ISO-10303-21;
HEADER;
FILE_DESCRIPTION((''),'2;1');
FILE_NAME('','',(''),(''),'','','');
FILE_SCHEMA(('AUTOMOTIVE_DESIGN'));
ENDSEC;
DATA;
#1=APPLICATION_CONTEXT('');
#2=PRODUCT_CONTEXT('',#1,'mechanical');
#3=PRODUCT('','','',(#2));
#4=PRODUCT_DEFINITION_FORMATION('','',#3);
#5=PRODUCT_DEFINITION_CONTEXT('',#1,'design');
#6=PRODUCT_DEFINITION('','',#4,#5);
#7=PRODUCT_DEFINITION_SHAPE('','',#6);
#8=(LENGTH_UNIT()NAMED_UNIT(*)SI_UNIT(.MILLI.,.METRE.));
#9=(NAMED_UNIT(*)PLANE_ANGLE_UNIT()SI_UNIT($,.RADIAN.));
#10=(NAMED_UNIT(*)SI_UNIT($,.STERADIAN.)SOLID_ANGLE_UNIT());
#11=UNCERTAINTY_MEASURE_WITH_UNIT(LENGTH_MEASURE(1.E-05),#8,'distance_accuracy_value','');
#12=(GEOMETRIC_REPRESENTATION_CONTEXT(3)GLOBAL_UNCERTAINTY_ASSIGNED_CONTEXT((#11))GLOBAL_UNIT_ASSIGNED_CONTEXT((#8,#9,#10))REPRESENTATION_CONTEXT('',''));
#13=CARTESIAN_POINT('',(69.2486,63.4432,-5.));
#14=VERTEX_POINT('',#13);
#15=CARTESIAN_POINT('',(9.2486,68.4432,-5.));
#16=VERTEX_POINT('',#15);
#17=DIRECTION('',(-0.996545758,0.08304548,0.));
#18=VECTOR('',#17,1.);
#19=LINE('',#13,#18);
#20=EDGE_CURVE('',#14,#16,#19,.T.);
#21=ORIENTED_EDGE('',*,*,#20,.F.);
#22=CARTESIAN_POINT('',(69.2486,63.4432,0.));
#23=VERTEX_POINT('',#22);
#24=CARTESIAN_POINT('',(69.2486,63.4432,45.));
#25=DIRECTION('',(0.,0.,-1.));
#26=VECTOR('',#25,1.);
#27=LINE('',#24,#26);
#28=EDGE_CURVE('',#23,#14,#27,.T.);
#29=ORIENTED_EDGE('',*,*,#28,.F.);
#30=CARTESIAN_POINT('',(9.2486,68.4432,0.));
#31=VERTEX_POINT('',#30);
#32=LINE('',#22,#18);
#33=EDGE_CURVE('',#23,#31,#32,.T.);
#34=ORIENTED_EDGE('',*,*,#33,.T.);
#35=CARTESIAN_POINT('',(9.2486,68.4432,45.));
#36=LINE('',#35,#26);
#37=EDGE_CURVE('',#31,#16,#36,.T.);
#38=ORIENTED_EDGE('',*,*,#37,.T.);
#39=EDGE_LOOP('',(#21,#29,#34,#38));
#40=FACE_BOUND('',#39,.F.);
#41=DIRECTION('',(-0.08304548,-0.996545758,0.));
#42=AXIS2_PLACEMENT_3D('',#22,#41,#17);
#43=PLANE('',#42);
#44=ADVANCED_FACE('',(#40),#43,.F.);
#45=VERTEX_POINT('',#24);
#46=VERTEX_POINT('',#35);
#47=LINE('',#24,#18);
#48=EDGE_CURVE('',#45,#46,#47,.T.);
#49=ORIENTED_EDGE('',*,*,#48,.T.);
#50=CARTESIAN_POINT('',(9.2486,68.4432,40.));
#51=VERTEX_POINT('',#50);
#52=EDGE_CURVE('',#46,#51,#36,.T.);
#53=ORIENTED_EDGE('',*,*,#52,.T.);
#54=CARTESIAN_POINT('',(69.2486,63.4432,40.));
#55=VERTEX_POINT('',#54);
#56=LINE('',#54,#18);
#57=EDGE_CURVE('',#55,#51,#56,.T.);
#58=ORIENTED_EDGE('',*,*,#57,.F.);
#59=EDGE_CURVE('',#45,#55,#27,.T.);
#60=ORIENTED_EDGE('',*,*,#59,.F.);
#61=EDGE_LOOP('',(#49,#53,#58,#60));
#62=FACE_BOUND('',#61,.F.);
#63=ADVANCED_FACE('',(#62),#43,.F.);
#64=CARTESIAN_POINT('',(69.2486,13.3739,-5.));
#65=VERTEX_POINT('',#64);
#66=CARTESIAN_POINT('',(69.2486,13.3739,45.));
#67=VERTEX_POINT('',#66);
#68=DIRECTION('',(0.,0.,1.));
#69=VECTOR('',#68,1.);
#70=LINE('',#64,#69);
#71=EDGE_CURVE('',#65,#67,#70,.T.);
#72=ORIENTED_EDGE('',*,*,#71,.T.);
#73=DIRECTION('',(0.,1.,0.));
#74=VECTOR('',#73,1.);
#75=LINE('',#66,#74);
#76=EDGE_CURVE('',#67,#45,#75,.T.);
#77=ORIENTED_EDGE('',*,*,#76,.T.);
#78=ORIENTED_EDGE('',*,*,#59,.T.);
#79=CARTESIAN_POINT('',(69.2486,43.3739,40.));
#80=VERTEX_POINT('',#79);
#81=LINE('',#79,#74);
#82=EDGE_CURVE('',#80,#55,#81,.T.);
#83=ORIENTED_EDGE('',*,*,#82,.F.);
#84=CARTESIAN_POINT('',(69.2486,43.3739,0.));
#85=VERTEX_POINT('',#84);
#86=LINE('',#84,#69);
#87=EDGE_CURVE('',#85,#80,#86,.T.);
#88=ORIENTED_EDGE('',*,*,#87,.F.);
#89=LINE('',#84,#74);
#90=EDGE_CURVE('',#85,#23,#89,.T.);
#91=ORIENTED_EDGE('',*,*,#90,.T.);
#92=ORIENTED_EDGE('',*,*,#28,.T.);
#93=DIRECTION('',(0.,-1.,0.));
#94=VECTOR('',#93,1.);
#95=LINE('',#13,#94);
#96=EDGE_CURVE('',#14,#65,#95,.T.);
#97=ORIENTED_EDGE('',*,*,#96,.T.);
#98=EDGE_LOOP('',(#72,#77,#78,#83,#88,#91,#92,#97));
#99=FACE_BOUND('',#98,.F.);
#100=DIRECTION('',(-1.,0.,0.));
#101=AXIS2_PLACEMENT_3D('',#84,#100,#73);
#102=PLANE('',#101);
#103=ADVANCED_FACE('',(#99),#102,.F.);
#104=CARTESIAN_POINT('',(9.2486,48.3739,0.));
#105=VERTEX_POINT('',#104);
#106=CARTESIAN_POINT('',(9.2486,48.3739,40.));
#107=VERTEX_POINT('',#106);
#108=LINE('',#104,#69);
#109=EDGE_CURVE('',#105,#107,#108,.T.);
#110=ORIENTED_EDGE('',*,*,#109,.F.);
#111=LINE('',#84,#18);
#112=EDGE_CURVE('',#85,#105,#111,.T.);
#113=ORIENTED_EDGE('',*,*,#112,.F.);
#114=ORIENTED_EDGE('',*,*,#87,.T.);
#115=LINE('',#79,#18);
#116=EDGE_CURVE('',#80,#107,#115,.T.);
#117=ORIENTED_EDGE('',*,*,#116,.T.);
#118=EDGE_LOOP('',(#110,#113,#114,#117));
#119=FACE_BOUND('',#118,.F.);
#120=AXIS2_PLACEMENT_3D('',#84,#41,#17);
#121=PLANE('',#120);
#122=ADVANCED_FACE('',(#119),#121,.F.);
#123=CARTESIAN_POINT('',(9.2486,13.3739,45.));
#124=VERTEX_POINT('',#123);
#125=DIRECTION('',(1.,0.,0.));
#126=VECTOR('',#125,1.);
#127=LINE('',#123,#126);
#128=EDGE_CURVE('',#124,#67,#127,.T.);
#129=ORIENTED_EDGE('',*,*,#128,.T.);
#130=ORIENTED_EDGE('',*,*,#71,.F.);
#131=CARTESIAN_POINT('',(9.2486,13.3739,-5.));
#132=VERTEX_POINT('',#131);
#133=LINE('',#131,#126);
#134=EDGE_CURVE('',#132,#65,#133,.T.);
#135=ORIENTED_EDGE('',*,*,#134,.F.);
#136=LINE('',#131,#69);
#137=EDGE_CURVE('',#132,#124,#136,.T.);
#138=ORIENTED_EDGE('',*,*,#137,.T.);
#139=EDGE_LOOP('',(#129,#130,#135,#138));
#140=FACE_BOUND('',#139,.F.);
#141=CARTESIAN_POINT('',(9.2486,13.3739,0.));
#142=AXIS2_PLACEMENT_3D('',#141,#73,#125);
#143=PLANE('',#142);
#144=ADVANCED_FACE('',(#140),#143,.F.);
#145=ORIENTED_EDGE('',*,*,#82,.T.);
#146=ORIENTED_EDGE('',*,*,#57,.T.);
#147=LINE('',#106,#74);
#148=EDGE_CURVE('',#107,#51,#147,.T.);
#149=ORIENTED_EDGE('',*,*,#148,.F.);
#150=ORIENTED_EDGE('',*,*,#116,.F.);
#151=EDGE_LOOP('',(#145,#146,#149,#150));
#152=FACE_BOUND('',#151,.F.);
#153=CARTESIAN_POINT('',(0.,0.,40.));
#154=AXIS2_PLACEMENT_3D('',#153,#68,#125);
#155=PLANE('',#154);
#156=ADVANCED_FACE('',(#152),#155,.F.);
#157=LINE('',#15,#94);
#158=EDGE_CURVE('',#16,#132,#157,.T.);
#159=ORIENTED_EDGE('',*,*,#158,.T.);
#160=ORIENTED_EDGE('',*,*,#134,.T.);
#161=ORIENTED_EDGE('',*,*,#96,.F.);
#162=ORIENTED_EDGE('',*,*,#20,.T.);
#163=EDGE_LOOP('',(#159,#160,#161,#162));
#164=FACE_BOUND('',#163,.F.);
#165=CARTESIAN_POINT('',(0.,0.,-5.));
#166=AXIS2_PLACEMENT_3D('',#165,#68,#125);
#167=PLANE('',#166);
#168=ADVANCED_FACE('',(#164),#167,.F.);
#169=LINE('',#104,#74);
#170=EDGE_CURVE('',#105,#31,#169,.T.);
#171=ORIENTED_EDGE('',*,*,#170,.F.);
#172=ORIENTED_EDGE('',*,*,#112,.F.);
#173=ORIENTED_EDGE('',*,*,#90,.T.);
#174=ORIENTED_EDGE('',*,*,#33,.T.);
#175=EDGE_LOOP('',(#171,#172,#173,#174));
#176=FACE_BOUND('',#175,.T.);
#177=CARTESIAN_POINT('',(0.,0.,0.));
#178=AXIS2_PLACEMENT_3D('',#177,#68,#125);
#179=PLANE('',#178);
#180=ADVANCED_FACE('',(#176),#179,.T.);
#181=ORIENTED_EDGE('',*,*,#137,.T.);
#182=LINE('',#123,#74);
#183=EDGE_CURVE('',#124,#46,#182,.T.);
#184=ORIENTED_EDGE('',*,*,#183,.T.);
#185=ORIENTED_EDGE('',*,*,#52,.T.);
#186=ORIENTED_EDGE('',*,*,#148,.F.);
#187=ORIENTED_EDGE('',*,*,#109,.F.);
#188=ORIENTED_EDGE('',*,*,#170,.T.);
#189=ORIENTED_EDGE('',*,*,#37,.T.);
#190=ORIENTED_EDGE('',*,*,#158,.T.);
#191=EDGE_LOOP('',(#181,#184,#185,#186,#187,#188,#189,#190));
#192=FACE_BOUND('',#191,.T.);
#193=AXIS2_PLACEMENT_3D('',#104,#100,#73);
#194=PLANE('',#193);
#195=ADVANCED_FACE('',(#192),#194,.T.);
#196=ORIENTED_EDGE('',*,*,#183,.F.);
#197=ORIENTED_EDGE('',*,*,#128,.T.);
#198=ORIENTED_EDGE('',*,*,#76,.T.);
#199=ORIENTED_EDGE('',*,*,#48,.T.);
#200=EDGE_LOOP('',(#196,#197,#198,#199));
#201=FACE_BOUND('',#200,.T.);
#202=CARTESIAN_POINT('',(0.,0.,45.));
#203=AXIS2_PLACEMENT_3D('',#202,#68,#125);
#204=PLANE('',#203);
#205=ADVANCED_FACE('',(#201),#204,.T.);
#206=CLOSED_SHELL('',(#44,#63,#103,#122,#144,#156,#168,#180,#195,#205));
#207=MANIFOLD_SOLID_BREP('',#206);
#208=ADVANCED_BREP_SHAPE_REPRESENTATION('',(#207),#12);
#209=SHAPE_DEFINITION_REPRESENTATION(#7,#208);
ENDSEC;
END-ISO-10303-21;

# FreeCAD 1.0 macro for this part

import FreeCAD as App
import Part
import Sketcher
Q = App.Units.Quantity

doc = App.newDocument("Part")
params = doc.addObject("Spreadsheet::Sheet", "Params")
for row, (alias, value) in enumerate([
    ("sketch1_width", "60 mm"),
    ("sketch1_height", "35 mm"),
    ("sketch1_height2", "30 mm"),
    ("pad1_length", "45 mm"),
    ("pad1_length2", "5 mm"),
    ("pad2_length", "5 mm"),
    ("pad3_length", "45 mm"),
    ("pocket1_length", "40 mm"),
], start=1):
    params.set(f"A{row}", alias)
    params.set(f"B{row}", "=" + value)
    params.setAlias(f"B{row}", alias)

body = doc.addObject("PartDesign::Body", "Body")

# Sketch on XY plane
sketch1 = doc.addObject("Sketcher::SketchObject", "Sketch")
body.addObject(sketch1)
sketch1.AttachmentSupport = (doc.XY_Plane, [""])
sketch1.MapMode = "FlatFace"
sketch1.addGeometry([
    Part.LineSegment(App.Vector(9, 48, 0), App.Vector(9, 13, 0)),
    Part.LineSegment(App.Vector(9, 13, 0), App.Vector(69, 13, 0)),
    Part.LineSegment(App.Vector(69, 13, 0), App.Vector(69, 43, 0)),
    Part.LineSegment(App.Vector(69, 43, 0), App.Vector(9, 48, 0)),
], False)
sketch1.addConstraint([
    Sketcher.Constraint("Coincident", 0, 2, 1, 1),
    Sketcher.Constraint("Coincident", 1, 2, 2, 1),
    Sketcher.Constraint("Coincident", 2, 2, 3, 1),
    Sketcher.Constraint("Coincident", 3, 2, 0, 1),
    Sketcher.Constraint("Vertical", 0),
    Sketcher.Constraint("Horizontal", 1),
    Sketcher.Constraint("Vertical", 2),
    Sketcher.Constraint("DistanceX", 1, 1, 1, 2, Q("60 mm")),
    Sketcher.Constraint("DistanceY", 0, 2, 0, 1, Q("35 mm")),
    Sketcher.Constraint("DistanceY", 2, 1, 2, 2, Q("30 mm")),
    Sketcher.Constraint("DistanceY", -1, 1, 0, 2, Q("13.374 mm")),
    Sketcher.Constraint("DistanceX", -1, 1, 0, 2, Q("9.2486 mm")),
])
sketch1.setExpression("Constraints[7]", "Params.sketch1_width")
sketch1.setExpression("Constraints[8]", "Params.sketch1_height")
sketch1.setExpression("Constraints[9]", "Params.sketch1_height2")
pad1 = doc.addObject("PartDesign::Pad", "Pad")
body.addObject(pad1)
pad1.Profile = sketch1
pad1.Type = "TwoLengths"
pad1.setExpression("Length", "Params.pad1_length")
pad1.setExpression("Length2", "Params.pad1_length2")

# Sketch on XY plane
sketch2 = doc.addObject("Sketcher::SketchObject", "Sketch001")
body.addObject(sketch2)
sketch2.AttachmentSupport = (doc.XY_Plane, [""])
sketch2.MapMode = "FlatFace"
sketch2.addGeometry([
    Part.LineSegment(App.Vector(9, 68, 0), App.Vector(9, 48, 0)),
    Part.LineSegment(App.Vector(9, 48, 0), App.Vector(69, 43, 0)),
    Part.LineSegment(App.Vector(69, 43, 0), App.Vector(69, 63, 0)),
    Part.LineSegment(App.Vector(69, 63, 0), App.Vector(9, 68, 0)),
], False)
sketch2.addConstraint([
    Sketcher.Constraint("Coincident", 0, 2, 1, 1),
    Sketcher.Constraint("Coincident", 1, 2, 2, 1),
    Sketcher.Constraint("Coincident", 2, 2, 3, 1),
    Sketcher.Constraint("Coincident", 3, 2, 0, 1),
    Sketcher.Constraint("Vertical", 0),
    Sketcher.Constraint("Vertical", 2),
    Sketcher.Constraint("Parallel", 1, 3),
    Sketcher.Constraint("DistanceX", 0, 2, 1, 2, Q("60 mm")),
    Sketcher.Constraint("DistanceY", 1, 2, 0, 2, Q("5 mm")),
    Sketcher.Constraint("DistanceY", 0, 2, 0, 1, Q("20.0693 mm")),
    Sketcher.Constraint("DistanceY", -1, 1, 0, 2, Q("48.374 mm")),
    Sketcher.Constraint("DistanceX", -1, 1, 0, 2, Q("9.2486 mm")),
])
pad2 = doc.addObject("PartDesign::Pad", "Pad001")
body.addObject(pad2)
pad2.Profile = sketch2
pad2.setExpression("Length", "Params.pad2_length")
pad2.Reversed = True

# Sketch on XY plane
sketch3 = doc.addObject("Sketcher::SketchObject", "Sketch002")
body.addObject(sketch3)
sketch3.AttachmentSupport = (doc.XY_Plane, [""])
sketch3.MapMode = "FlatFace"
sketch3.addGeometry([
    Part.LineSegment(App.Vector(9, 68, 0), App.Vector(9, 48, 0)),
    Part.LineSegment(App.Vector(9, 48, 0), App.Vector(69, 43, 0)),
    Part.LineSegment(App.Vector(69, 43, 0), App.Vector(69, 63, 0)),
    Part.LineSegment(App.Vector(69, 63, 0), App.Vector(9, 68, 0)),
], False)
sketch3.addConstraint([
    Sketcher.Constraint("Coincident", 0, 2, 1, 1),
    Sketcher.Constraint("Coincident", 1, 2, 2, 1),
    Sketcher.Constraint("Coincident", 2, 2, 3, 1),
    Sketcher.Constraint("Coincident", 3, 2, 0, 1),
    Sketcher.Constraint("Vertical", 0),
    Sketcher.Constraint("Vertical", 2),
    Sketcher.Constraint("Parallel", 1, 3),
    Sketcher.Constraint("DistanceX", 0, 2, 1, 2, Q("60 mm")),
    Sketcher.Constraint("DistanceY", 1, 2, 0, 2, Q("5 mm")),
    Sketcher.Constraint("DistanceY", 0, 2, 0, 1, Q("20.0693 mm")),
    Sketcher.Constraint("DistanceY", -1, 1, 0, 2, Q("48.374 mm")),
    Sketcher.Constraint("DistanceX", -1, 1, 0, 2, Q("9.2486 mm")),
])
pad3 = doc.addObject("PartDesign::Pad", "Pad002")
body.addObject(pad3)
pad3.Profile = sketch3
pad3.setExpression("Length", "Params.pad3_length")

# Sketch on XY plane
sketch4 = doc.addObject("Sketcher::SketchObject", "Sketch003")
body.addObject(sketch4)
sketch4.AttachmentSupport = (doc.XY_Plane, [""])
sketch4.MapMode = "FlatFace"
sketch4.addGeometry([
    Part.LineSegment(App.Vector(9, 68, 0), App.Vector(9, 48, 0)),
    Part.LineSegment(App.Vector(9, 48, 0), App.Vector(69, 43, 0)),
    Part.LineSegment(App.Vector(69, 43, 0), App.Vector(69, 63, 0)),
    Part.LineSegment(App.Vector(69, 63, 0), App.Vector(9, 68, 0)),
], False)
sketch4.addConstraint([
    Sketcher.Constraint("Coincident", 0, 2, 1, 1),
    Sketcher.Constraint("Coincident", 1, 2, 2, 1),
    Sketcher.Constraint("Coincident", 2, 2, 3, 1),
    Sketcher.Constraint("Coincident", 3, 2, 0, 1),
    Sketcher.Constraint("Vertical", 0),
    Sketcher.Constraint("Vertical", 2),
    Sketcher.Constraint("Parallel", 1, 3),
    Sketcher.Constraint("DistanceX", 0, 2, 1, 2, Q("60 mm")),
    Sketcher.Constraint("DistanceY", 1, 2, 0, 2, Q("5 mm")),
    Sketcher.Constraint("DistanceY", 0, 2, 0, 1, Q("20.0693 mm")),
    Sketcher.Constraint("DistanceY", -1, 1, 0, 2, Q("48.374 mm")),
    Sketcher.Constraint("DistanceX", -1, 1, 0, 2, Q("9.2486 mm")),
])
pocket1 = doc.addObject("PartDesign::Pocket", "Pocket")
body.addObject(pocket1)
pocket1.Profile = sketch4
pocket1.setExpression("Length", "Params.pocket1_length")
pocket1.Reversed = True

doc.recompute()
